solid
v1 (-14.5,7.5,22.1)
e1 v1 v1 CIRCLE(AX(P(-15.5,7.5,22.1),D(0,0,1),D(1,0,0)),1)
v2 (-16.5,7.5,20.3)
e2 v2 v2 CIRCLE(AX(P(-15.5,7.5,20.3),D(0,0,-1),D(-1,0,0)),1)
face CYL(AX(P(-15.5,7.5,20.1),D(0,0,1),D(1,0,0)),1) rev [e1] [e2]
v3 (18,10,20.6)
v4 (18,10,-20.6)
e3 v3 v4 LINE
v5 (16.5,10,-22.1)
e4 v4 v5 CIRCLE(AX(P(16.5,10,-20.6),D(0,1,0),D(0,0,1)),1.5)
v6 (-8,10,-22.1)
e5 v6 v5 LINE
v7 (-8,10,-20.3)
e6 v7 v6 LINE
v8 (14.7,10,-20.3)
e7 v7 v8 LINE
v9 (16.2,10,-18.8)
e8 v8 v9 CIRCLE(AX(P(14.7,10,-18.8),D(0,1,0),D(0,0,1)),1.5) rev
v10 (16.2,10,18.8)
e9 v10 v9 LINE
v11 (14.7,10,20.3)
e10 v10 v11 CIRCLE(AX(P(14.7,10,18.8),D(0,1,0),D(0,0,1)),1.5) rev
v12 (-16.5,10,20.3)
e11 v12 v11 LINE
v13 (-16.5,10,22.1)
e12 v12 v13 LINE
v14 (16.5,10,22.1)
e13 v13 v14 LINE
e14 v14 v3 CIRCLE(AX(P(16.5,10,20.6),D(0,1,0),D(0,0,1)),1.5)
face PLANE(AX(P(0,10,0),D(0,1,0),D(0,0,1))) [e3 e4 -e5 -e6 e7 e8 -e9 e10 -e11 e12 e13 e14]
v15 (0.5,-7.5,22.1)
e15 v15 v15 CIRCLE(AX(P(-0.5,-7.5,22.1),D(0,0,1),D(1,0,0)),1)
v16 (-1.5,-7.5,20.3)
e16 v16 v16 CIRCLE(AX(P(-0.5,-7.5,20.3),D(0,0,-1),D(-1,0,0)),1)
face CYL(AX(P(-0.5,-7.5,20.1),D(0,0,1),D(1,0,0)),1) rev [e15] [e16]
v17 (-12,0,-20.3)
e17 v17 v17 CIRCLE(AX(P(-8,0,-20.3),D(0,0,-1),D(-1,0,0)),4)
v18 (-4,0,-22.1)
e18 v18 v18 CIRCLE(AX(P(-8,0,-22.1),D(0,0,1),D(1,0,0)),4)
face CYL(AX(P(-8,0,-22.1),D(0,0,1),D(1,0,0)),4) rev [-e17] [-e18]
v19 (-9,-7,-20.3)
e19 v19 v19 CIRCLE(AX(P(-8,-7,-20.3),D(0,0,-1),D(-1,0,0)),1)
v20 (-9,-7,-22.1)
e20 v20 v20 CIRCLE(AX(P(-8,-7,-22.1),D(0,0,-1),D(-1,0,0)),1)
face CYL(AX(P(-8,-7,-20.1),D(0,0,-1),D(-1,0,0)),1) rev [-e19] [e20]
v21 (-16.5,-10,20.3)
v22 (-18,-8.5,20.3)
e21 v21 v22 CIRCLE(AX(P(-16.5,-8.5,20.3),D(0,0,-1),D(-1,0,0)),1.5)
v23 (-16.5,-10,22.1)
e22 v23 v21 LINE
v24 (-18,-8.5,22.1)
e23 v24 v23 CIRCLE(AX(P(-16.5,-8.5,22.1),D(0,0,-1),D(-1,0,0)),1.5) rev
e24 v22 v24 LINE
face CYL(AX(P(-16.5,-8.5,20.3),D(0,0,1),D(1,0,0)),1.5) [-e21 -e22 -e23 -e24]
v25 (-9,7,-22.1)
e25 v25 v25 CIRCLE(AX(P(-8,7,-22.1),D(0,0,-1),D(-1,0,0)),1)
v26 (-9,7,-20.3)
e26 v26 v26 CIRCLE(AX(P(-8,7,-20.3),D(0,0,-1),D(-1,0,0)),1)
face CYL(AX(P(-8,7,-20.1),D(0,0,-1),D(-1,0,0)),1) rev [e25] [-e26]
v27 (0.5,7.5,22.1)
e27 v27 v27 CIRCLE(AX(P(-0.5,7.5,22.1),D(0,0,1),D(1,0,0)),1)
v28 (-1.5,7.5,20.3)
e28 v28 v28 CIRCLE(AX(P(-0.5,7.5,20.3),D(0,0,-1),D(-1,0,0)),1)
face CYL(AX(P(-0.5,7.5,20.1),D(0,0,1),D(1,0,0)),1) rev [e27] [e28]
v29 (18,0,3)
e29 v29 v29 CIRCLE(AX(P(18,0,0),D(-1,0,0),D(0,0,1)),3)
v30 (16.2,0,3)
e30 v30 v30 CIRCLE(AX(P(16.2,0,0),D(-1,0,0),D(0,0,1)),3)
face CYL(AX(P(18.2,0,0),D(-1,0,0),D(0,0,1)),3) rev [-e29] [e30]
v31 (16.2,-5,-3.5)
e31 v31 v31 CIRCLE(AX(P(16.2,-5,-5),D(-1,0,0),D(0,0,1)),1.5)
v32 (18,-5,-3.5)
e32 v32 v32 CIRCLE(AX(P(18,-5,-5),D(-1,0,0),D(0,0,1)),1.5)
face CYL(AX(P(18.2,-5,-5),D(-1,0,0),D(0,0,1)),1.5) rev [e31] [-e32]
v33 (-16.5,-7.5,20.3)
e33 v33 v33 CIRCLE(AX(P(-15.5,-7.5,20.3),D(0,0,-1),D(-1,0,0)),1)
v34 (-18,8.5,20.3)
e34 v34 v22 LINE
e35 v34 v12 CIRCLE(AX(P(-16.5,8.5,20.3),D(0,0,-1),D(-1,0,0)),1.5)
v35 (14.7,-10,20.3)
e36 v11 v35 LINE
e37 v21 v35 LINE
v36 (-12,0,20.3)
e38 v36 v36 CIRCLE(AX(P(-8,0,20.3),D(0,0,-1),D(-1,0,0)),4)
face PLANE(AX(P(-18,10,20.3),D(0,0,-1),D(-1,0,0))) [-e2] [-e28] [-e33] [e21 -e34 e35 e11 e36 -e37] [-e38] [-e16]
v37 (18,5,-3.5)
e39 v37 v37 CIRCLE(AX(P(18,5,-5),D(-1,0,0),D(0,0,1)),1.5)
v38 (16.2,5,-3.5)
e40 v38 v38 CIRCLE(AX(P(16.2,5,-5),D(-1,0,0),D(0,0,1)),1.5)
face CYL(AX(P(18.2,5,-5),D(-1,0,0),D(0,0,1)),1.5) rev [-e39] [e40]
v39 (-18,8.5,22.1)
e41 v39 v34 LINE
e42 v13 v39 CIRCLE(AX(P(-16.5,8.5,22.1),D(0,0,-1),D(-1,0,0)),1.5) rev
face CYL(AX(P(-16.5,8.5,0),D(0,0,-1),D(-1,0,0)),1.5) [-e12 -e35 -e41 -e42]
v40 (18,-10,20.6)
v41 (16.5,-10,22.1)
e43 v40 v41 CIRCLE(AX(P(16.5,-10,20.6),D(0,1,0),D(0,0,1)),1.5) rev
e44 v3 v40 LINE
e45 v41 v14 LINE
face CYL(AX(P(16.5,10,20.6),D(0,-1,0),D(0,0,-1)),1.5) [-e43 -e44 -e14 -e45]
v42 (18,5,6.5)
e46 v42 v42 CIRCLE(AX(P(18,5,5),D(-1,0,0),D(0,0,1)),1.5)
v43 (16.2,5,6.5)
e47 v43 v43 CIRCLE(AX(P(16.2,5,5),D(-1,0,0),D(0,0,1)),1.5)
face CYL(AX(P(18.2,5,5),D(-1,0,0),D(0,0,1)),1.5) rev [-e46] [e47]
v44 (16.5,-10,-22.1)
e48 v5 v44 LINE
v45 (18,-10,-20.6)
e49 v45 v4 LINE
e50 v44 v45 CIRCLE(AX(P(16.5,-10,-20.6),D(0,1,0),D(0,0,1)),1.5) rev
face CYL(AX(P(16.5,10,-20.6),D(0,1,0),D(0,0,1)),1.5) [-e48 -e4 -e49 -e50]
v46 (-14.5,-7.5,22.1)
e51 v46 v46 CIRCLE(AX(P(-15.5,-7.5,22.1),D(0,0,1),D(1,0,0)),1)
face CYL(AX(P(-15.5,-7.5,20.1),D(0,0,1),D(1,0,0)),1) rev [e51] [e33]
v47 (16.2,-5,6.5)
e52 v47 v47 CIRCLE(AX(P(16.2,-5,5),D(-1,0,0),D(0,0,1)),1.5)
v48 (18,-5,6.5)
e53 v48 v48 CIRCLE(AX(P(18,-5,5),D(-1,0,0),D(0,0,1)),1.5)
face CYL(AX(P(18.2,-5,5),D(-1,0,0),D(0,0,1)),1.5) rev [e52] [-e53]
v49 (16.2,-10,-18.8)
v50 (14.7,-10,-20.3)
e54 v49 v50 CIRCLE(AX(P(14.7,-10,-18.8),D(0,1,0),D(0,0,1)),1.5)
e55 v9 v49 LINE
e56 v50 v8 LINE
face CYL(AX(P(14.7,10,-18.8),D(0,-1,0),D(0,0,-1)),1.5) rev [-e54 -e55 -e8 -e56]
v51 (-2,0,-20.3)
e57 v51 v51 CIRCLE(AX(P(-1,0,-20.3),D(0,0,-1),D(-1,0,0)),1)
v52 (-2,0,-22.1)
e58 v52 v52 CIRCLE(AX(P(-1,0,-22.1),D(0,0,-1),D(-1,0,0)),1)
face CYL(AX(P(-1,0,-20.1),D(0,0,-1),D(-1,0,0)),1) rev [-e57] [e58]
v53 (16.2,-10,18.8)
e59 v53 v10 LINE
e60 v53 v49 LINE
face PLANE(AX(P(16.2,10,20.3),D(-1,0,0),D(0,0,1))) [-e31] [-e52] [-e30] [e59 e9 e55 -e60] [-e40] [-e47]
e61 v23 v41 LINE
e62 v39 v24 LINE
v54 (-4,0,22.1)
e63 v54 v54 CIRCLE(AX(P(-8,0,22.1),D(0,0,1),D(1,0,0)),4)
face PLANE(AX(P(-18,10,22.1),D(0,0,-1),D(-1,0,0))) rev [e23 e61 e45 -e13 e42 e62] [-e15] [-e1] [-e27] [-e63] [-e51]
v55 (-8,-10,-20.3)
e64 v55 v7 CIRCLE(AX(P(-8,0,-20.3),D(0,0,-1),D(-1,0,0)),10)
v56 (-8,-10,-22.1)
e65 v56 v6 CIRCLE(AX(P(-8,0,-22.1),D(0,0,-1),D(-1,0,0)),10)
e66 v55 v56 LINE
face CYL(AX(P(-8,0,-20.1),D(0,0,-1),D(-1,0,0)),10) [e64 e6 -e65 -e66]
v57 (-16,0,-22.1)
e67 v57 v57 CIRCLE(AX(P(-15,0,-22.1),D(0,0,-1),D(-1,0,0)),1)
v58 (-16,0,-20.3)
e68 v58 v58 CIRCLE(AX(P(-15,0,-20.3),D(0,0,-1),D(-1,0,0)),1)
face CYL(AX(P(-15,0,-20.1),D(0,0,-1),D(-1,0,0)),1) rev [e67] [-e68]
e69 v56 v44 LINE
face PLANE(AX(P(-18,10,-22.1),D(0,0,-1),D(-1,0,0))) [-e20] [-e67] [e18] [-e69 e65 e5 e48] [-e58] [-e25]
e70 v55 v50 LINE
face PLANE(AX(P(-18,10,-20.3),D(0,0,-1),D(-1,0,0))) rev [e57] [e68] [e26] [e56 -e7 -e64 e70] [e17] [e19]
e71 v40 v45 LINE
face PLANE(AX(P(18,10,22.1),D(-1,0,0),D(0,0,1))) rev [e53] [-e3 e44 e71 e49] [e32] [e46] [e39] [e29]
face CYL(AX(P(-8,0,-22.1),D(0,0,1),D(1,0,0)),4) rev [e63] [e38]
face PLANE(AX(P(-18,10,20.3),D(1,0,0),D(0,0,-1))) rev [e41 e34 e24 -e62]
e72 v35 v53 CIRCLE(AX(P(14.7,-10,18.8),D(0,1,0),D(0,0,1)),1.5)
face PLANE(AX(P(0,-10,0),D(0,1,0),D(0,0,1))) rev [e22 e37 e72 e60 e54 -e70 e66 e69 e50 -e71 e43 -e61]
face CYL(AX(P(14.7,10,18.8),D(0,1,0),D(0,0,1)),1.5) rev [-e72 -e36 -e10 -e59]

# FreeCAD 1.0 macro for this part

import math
import FreeCAD as App
import Part
import Sketcher


def edges_at(feature, points):
    """Names of the edges that pass closest to the given points."""
    edges = feature.Shape.Edges
    near = lambda p: min(range(len(edges)), key=lambda i: edges[i].distToShape(Part.Vertex(*p))[0])
    return sorted({f"Edge{near(p) + 1}" for p in points})


def add_polygon(sketch, points):
    """Adds a closed chain of lines whose ends are joined by coincident constraints."""
    first, n = sketch.GeometryCount, len(points)
    for a, b in zip(points, points[1:] + points[:1]):
        sketch.addGeometry(Part.LineSegment(App.Vector(*a, 0), App.Vector(*b, 0)), False)
    for i in range(n):
        sketch.addConstraint(Sketcher.Constraint("Coincident", first + i, 2, first + (i + 1) % n, 1))

doc = App.newDocument("Part")
body = doc.addObject("PartDesign::Body", "Body")

# Sketch on XZ plane
sketch1 = doc.addObject("Sketcher::SketchObject", "Sketch")
body.addObject(sketch1)
sketch1.AttachmentSupport = (doc.XZ_Plane, [""])
sketch1.MapMode = "FlatFace"
add_polygon(sketch1, [(-18, -20.3), (16.2, -20.3), (16.2, 20.3), (-18, 20.3), (-18, 22.1), (18, 22.1), (18, -22.1), (-18, -22.1)])  # lines 0-7
sketch1.addConstraint(Sketcher.Constraint("Horizontal", 0))
sketch1.addConstraint(Sketcher.Constraint("Vertical", 1))
sketch1.addConstraint(Sketcher.Constraint("Horizontal", 2))
sketch1.addConstraint(Sketcher.Constraint("Vertical", 3))
sketch1.addConstraint(Sketcher.Constraint("Horizontal", 4))
sketch1.addConstraint(Sketcher.Constraint("Vertical", 5))
sketch1.addConstraint(Sketcher.Constraint("Horizontal", 6))
sketch1.addConstraint(Sketcher.Constraint("Vertical", 7))
sketch1.addConstraint(Sketcher.Constraint("Symmetric", 3, 2, 5, 2, -1, 1))
sketch1.addConstraint(Sketcher.Constraint("Symmetric", 2, 2, 7, 2, -1))
sketch1.addConstraint(Sketcher.Constraint("DistanceX", 4, 1, 4, 2, 36.0))
sketch1.addConstraint(Sketcher.Constraint("DistanceX", 0, 1, 0, 2, 34.2))
sketch1.addConstraint(Sketcher.Constraint("DistanceY", 1, 1, 1, 2, 40.6))
sketch1.addConstraint(Sketcher.Constraint("DistanceY", 3, 1, 3, 2, 1.8))
pad1 = doc.addObject("PartDesign::Pad", "Pad")
body.addObject(pad1)
pad1.Profile = sketch1
pad1.Length = 20
pad1.Midplane = True
doc.recompute()

fillet = doc.addObject("PartDesign::Fillet", "Fillet")
body.addObject(fillet)
fillet.Base = (pad1, edges_at(pad1, [
    (18, 0, -22.1),
    (18, 0, 22.1),
    (16.2, 0, 20.3),
    (16.2, 0, -20.3),
    (-18, 10, 21.2),
    (-18, -10, 21.2),
]))
fillet.Radius = 1.5

# Sketch on XY plane
sketch2 = doc.addObject("Sketcher::SketchObject", "Sketch001")
body.addObject(sketch2)
sketch2.AttachmentSupport = (doc.XY_Plane, [""])
sketch2.MapMode = "FlatFace"
sketch2.AttachmentOffset = App.Placement(App.Vector(0, 0, -22.1), App.Rotation())
sketch2.addGeometry(Part.LineSegment(App.Vector(-18, 10, 0), App.Vector(-8, 10, 0)), False)
sketch2.addGeometry(Part.ArcOfCircle(Part.Circle(App.Vector(-8, 0, 0), App.Vector(0, 0, 1), 10), math.radians(90), math.radians(180)), False)
sketch2.addGeometry(Part.LineSegment(App.Vector(-18, 0, 0), App.Vector(-18, 10, 0)), False)
sketch2.addGeometry(Part.LineSegment(App.Vector(-18, -10, 0), App.Vector(-18, 0, 0)), False)
sketch2.addGeometry(Part.ArcOfCircle(Part.Circle(App.Vector(-8, 0, 0), App.Vector(0, 0, 1), 10), math.radians(180), math.radians(270)), False)
sketch2.addGeometry(Part.LineSegment(App.Vector(-8, -10, 0), App.Vector(-18, -10, 0)), False)
sketch2.addConstraint(Sketcher.Constraint("Tangent", 0, 2, 1, 1))
sketch2.addConstraint(Sketcher.Constraint("Tangent", 1, 2, 2, 1))
sketch2.addConstraint(Sketcher.Constraint("Coincident", 2, 2, 0, 1))
sketch2.addConstraint(Sketcher.Constraint("Tangent", 3, 2, 4, 1))
sketch2.addConstraint(Sketcher.Constraint("Tangent", 4, 2, 5, 1))
sketch2.addConstraint(Sketcher.Constraint("Coincident", 5, 2, 3, 1))
sketch2.addConstraint(Sketcher.Constraint("Horizontal", 0))
sketch2.addConstraint(Sketcher.Constraint("Vertical", 2))
sketch2.addConstraint(Sketcher.Constraint("Vertical", 3))
sketch2.addConstraint(Sketcher.Constraint("Horizontal", 5))
sketch2.addConstraint(Sketcher.Constraint("Coincident", 4, 3, 1, 3))
sketch2.addConstraint(Sketcher.Constraint("Equal", 1, 4))
sketch2.addConstraint(Sketcher.Constraint("PointOnObject", 1, 3, -1))
sketch2.addConstraint(Sketcher.Constraint("Radius", 1, 10.0))
sketch2.addConstraint(Sketcher.Constraint("DistanceX", 1, 3, -1, 1, 8.0))
pocket1 = doc.addObject("PartDesign::Pocket", "Pocket")
body.addObject(pocket1)
pocket1.Profile = sketch2
pocket1.Length = 2
pocket1.Reversed = True

# Sketch on XY plane
sketch3 = doc.addObject("Sketcher::SketchObject", "Sketch002")
body.addObject(sketch3)
sketch3.AttachmentSupport = (doc.XY_Plane, [""])
sketch3.MapMode = "FlatFace"
sketch3.AttachmentOffset = App.Placement(App.Vector(0, 0, 22.1), App.Rotation())
sketch3.addGeometry(Part.Circle(App.Vector(-8, 0, 0), App.Vector(0, 0, 1), 4), False)
sketch3.addConstraint(Sketcher.Constraint("PointOnObject", 0, 3, -1))
sketch3.addConstraint(Sketcher.Constraint("Diameter", 0, 8.0))
sketch3.addConstraint(Sketcher.Constraint("DistanceX", 0, 3, -1, 1, 8.0))
pocket2 = doc.addObject("PartDesign::Pocket", "Pocket001")
body.addObject(pocket2)
pocket2.Profile = sketch3
pocket2.Type = "ThroughAll"

# Sketch on YZ plane
sketch4 = doc.addObject("Sketcher::SketchObject", "Sketch003")
body.addObject(sketch4)
sketch4.AttachmentSupport = (doc.YZ_Plane, [""])
sketch4.MapMode = "FlatFace"
sketch4.AttachmentOffset = App.Placement(App.Vector(0, 0, 16.2), App.Rotation())
sketch4.addGeometry(Part.Circle(App.Vector(0, 0, 0), App.Vector(0, 0, 1), 3), False)
sketch4.addGeometry(Part.Circle(App.Vector(-5, 5, 0), App.Vector(0, 0, 1), 1.5), False)
sketch4.addGeometry(Part.Circle(App.Vector(-5, -5, 0), App.Vector(0, 0, 1), 1.5), False)
sketch4.addGeometry(Part.Circle(App.Vector(5, -5, 0), App.Vector(0, 0, 1), 1.5), False)
sketch4.addGeometry(Part.Circle(App.Vector(5, 5, 0), App.Vector(0, 0, 1), 1.5), False)
sketch4.addConstraint(Sketcher.Constraint("Coincident", 0, 3, -1, 1))
sketch4.addConstraint(Sketcher.Constraint("Equal", 1, 2))
sketch4.addConstraint(Sketcher.Constraint("Equal", 2, 3))
sketch4.addConstraint(Sketcher.Constraint("Equal", 3, 4))
sketch4.addConstraint(Sketcher.Constraint("Symmetric", 1, 3, 3, 3, -1, 1))
sketch4.addConstraint(Sketcher.Constraint("Symmetric", 2, 3, 4, 3, -1, 1))
sketch4.addConstraint(Sketcher.Constraint("Symmetric", 2, 3, 3, 3, -2))
sketch4.addConstraint(Sketcher.Constraint("Diameter", 0, 6.0))
sketch4.addConstraint(Sketcher.Constraint("Diameter", 1, 3.0))
sketch4.addConstraint(Sketcher.Constraint("DistanceX", 1, 3, -1, 1, 5.0))
sketch4.addConstraint(Sketcher.Constraint("DistanceY", -1, 1, 1, 3, 5.0))
pocket3 = doc.addObject("PartDesign::Pocket", "Pocket002")
body.addObject(pocket3)
pocket3.Profile = sketch4
pocket3.Length = 2
pocket3.Reversed = True

# Sketch on XY plane
sketch5 = doc.addObject("Sketcher::SketchObject", "Sketch004")
body.addObject(sketch5)
sketch5.AttachmentSupport = (doc.XY_Plane, [""])
sketch5.MapMode = "FlatFace"
sketch5.AttachmentOffset = App.Placement(App.Vector(0, 0, 22.1), App.Rotation())
sketch5.addGeometry(Part.Circle(App.Vector(-15.5, -7.5, 0), App.Vector(0, 0, 1), 1), False)
sketch5.addGeometry(Part.Circle(App.Vector(-15.5, 7.5, 0), App.Vector(0, 0, 1), 1), False)
sketch5.addGeometry(Part.Circle(App.Vector(-0.5, 7.5, 0), App.Vector(0, 0, 1), 1), False)
sketch5.addGeometry(Part.Circle(App.Vector(-0.5, -7.5, 0), App.Vector(0, 0, 1), 1), False)
sketch5.addConstraint(Sketcher.Constraint("Equal", 0, 1))
sketch5.addConstraint(Sketcher.Constraint("Equal", 1, 2))
sketch5.addConstraint(Sketcher.Constraint("Equal", 2, 3))
sketch5.addConstraint(Sketcher.Constraint("Symmetric", 0, 3, 1, 3, -1))
sketch5.addConstraint(Sketcher.Constraint("Symmetric", 2, 3, 3, 3, -1))
sketch5.addConstraint(Sketcher.Constraint("Horizontal", 1, 3, 2, 3))
sketch5.addConstraint(Sketcher.Constraint("Diameter", 0, 2.0))
sketch5.addConstraint(Sketcher.Constraint("DistanceY", 0, 3, 1, 3, 15.0))
sketch5.addConstraint(Sketcher.Constraint("DistanceX", 1, 3, 2, 3, 15.0))
sketch5.addConstraint(Sketcher.Constraint("DistanceX", 0, 3, -1, 1, 15.5))
pocket4 = doc.addObject("PartDesign::Pocket", "Pocket003")
body.addObject(pocket4)
pocket4.Profile = sketch5
pocket4.Length = 2

# Sketch on XY plane
sketch6 = doc.addObject("Sketcher::SketchObject", "Sketch005")
body.addObject(sketch6)
sketch6.AttachmentSupport = (doc.XY_Plane, [""])
sketch6.MapMode = "FlatFace"
sketch6.AttachmentOffset = App.Placement(App.Vector(0, 0, -22.1), App.Rotation())
sketch6.addGeometry(Part.Circle(App.Vector(-8, -7, 0), App.Vector(0, 0, 1), 1), False)
sketch6.addGeometry(Part.Circle(App.Vector(-15, 0, 0), App.Vector(0, 0, 1), 1), False)
sketch6.addGeometry(Part.Circle(App.Vector(-8, 7, 0), App.Vector(0, 0, 1), 1), False)
sketch6.addGeometry(Part.Circle(App.Vector(-1, 0, 0), App.Vector(0, 0, 1), 1), False)
sketch6.addConstraint(Sketcher.Constraint("Equal", 0, 1))
sketch6.addConstraint(Sketcher.Constraint("Equal", 1, 2))
sketch6.addConstraint(Sketcher.Constraint("Equal", 2, 3))
sketch6.addConstraint(Sketcher.Constraint("Symmetric", 0, 3, 2, 3, -1))
sketch6.addConstraint(Sketcher.Constraint("PointOnObject", 1, 3, -1))
sketch6.addConstraint(Sketcher.Constraint("PointOnObject", 3, 3, -1))
sketch6.addConstraint(Sketcher.Constraint("Diameter", 0, 2.0))
sketch6.addConstraint(Sketcher.Constraint("DistanceX", 0, 3, -1, 1, 8.0))
sketch6.addConstraint(Sketcher.Constraint("DistanceY", 0, 3, -1, 1, 7.0))
sketch6.addConstraint(Sketcher.Constraint("DistanceX", 1, 3, -1, 1, 15.0))
sketch6.addConstraint(Sketcher.Constraint("DistanceX", 3, 3, -1, 1, 1.0))
pocket5 = doc.addObject("PartDesign::Pocket", "Pocket004")
body.addObject(pocket5)
pocket5.Profile = sketch6
pocket5.Length = 2
pocket5.Reversed = True

doc.recompute()
